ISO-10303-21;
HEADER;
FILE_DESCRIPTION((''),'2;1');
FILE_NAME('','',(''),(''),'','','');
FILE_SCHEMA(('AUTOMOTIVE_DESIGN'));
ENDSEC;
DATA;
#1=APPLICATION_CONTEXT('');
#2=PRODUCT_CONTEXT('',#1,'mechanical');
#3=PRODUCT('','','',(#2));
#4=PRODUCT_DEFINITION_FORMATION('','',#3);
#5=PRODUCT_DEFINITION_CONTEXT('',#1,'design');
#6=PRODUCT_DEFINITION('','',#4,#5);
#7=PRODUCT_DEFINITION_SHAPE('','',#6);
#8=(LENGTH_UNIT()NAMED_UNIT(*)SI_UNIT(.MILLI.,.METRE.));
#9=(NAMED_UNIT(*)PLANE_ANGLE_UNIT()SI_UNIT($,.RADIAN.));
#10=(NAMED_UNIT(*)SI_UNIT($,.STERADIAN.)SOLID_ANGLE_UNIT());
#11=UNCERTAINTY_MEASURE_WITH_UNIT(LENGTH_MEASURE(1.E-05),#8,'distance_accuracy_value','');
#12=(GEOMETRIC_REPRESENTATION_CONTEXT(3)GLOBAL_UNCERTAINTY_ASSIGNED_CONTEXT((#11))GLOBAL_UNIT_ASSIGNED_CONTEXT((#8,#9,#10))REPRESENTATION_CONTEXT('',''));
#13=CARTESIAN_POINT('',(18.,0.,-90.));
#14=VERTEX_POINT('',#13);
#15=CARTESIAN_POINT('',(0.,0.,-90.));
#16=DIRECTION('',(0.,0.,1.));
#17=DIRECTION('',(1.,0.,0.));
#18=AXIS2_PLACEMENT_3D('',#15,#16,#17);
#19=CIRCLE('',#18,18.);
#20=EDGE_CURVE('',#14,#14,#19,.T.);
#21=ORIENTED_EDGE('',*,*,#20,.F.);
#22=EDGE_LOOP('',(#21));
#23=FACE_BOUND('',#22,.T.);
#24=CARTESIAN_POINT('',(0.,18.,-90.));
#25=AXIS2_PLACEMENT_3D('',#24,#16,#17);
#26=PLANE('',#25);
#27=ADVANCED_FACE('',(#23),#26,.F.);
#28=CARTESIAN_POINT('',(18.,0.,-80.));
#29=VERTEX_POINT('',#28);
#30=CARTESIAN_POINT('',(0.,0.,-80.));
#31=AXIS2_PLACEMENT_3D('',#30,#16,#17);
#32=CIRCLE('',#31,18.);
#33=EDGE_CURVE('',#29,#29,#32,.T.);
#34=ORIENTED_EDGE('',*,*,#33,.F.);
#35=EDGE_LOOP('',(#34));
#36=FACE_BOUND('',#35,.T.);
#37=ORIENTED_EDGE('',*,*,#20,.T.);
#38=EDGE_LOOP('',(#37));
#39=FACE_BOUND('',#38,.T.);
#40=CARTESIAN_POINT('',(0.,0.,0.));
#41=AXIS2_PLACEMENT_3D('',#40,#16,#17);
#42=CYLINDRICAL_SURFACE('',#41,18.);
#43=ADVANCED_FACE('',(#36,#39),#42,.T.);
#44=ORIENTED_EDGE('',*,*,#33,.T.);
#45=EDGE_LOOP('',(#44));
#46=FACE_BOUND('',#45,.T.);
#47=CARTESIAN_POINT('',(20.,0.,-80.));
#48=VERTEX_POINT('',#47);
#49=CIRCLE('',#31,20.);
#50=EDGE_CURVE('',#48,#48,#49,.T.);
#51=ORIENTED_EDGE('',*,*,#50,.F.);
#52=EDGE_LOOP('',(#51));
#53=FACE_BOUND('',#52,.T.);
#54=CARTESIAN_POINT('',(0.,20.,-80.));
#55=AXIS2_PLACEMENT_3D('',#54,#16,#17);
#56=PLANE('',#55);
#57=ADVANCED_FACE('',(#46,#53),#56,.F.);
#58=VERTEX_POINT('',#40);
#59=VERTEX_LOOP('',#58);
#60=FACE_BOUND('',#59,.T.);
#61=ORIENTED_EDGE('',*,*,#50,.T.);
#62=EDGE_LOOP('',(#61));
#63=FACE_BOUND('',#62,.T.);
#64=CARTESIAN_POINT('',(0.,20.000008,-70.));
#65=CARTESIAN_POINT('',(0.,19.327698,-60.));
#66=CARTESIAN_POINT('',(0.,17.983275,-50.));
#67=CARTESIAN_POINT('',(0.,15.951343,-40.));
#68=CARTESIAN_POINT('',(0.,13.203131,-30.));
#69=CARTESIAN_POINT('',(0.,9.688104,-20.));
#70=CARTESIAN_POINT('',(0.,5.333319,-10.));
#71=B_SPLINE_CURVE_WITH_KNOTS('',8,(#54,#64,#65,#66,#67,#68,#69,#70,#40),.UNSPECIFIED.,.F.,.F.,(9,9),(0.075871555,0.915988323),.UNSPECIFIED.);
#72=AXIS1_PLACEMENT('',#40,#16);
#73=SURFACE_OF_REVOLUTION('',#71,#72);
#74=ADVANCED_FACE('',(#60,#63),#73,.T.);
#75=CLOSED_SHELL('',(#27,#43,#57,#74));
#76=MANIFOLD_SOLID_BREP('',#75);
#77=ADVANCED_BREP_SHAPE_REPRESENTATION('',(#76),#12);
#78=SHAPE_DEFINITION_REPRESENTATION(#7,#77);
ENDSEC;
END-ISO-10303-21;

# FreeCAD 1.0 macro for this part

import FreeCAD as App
import Part
import Sketcher

V = App.Vector

doc = App.newDocument("Part")
body = doc.addObject("PartDesign::Body", "Body")

# Sketch on YZ plane
sketch1 = body.newObject("Sketcher::SketchObject", "Sketch")
sketch1.AttachmentSupport = (doc.getObject("YZ_Plane"), [""])
sketch1.MapMode = "FlatFace"
sketch1.addGeometry([
    Part.LineSegment(V(18, -80, 0), V(20, -80, 0)),  # 0
    Part.BSplineCurve([V(0, 0, 0), V(5.333319, -10, 0), V(9.688104, -20, 0), V(13.203131, -30, 0), V(15.951343, -40, 0), V(17.983275, -50, 0), V(19.327698, -60, 0), V(20.000008, -70, 0), V(20, -80, 0)], [9, 9], [0.075871555, 0.915988323], False, 8, [1, 1, 1, 1, 1, 1, 1, 1, 1], False),  # 1
    Part.LineSegment(V(0, 0, 0), V(0, -90, 0)),  # 2
    Part.LineSegment(V(0, -90, 0), V(18, -90, 0)),  # 3
    Part.LineSegment(V(18, -90, 0), V(18, -80, 0)),  # 4
], False)
sketch1.addConstraint([
    Sketcher.Constraint("Block", 1),
    Sketcher.Constraint("Coincident", 0, 2, 1, 2),
    Sketcher.Constraint("Coincident", 1, 1, 2, 1),
    Sketcher.Constraint("Coincident", 2, 2, 3, 1),
    Sketcher.Constraint("Coincident", 3, 2, 4, 1),
    Sketcher.Constraint("Coincident", 4, 2, 0, 1),
    Sketcher.Constraint("Horizontal", 0),
    Sketcher.Constraint("Vertical", 2),
    Sketcher.Constraint("Horizontal", 3),
    Sketcher.Constraint("Vertical", 4),
    Sketcher.Constraint("DistanceX", 0, 1, 0, 2, 2.0),
    Sketcher.Constraint("DistanceY", 2, 2, 2, 1, 90.0),
])
revolution = body.newObject("PartDesign::Revolution", "Revolution")
revolution.Profile = sketch1
revolution.ReferenceAxis = (sketch1, ["V_Axis"])
revolution.Angle = 360

doc.recompute()
